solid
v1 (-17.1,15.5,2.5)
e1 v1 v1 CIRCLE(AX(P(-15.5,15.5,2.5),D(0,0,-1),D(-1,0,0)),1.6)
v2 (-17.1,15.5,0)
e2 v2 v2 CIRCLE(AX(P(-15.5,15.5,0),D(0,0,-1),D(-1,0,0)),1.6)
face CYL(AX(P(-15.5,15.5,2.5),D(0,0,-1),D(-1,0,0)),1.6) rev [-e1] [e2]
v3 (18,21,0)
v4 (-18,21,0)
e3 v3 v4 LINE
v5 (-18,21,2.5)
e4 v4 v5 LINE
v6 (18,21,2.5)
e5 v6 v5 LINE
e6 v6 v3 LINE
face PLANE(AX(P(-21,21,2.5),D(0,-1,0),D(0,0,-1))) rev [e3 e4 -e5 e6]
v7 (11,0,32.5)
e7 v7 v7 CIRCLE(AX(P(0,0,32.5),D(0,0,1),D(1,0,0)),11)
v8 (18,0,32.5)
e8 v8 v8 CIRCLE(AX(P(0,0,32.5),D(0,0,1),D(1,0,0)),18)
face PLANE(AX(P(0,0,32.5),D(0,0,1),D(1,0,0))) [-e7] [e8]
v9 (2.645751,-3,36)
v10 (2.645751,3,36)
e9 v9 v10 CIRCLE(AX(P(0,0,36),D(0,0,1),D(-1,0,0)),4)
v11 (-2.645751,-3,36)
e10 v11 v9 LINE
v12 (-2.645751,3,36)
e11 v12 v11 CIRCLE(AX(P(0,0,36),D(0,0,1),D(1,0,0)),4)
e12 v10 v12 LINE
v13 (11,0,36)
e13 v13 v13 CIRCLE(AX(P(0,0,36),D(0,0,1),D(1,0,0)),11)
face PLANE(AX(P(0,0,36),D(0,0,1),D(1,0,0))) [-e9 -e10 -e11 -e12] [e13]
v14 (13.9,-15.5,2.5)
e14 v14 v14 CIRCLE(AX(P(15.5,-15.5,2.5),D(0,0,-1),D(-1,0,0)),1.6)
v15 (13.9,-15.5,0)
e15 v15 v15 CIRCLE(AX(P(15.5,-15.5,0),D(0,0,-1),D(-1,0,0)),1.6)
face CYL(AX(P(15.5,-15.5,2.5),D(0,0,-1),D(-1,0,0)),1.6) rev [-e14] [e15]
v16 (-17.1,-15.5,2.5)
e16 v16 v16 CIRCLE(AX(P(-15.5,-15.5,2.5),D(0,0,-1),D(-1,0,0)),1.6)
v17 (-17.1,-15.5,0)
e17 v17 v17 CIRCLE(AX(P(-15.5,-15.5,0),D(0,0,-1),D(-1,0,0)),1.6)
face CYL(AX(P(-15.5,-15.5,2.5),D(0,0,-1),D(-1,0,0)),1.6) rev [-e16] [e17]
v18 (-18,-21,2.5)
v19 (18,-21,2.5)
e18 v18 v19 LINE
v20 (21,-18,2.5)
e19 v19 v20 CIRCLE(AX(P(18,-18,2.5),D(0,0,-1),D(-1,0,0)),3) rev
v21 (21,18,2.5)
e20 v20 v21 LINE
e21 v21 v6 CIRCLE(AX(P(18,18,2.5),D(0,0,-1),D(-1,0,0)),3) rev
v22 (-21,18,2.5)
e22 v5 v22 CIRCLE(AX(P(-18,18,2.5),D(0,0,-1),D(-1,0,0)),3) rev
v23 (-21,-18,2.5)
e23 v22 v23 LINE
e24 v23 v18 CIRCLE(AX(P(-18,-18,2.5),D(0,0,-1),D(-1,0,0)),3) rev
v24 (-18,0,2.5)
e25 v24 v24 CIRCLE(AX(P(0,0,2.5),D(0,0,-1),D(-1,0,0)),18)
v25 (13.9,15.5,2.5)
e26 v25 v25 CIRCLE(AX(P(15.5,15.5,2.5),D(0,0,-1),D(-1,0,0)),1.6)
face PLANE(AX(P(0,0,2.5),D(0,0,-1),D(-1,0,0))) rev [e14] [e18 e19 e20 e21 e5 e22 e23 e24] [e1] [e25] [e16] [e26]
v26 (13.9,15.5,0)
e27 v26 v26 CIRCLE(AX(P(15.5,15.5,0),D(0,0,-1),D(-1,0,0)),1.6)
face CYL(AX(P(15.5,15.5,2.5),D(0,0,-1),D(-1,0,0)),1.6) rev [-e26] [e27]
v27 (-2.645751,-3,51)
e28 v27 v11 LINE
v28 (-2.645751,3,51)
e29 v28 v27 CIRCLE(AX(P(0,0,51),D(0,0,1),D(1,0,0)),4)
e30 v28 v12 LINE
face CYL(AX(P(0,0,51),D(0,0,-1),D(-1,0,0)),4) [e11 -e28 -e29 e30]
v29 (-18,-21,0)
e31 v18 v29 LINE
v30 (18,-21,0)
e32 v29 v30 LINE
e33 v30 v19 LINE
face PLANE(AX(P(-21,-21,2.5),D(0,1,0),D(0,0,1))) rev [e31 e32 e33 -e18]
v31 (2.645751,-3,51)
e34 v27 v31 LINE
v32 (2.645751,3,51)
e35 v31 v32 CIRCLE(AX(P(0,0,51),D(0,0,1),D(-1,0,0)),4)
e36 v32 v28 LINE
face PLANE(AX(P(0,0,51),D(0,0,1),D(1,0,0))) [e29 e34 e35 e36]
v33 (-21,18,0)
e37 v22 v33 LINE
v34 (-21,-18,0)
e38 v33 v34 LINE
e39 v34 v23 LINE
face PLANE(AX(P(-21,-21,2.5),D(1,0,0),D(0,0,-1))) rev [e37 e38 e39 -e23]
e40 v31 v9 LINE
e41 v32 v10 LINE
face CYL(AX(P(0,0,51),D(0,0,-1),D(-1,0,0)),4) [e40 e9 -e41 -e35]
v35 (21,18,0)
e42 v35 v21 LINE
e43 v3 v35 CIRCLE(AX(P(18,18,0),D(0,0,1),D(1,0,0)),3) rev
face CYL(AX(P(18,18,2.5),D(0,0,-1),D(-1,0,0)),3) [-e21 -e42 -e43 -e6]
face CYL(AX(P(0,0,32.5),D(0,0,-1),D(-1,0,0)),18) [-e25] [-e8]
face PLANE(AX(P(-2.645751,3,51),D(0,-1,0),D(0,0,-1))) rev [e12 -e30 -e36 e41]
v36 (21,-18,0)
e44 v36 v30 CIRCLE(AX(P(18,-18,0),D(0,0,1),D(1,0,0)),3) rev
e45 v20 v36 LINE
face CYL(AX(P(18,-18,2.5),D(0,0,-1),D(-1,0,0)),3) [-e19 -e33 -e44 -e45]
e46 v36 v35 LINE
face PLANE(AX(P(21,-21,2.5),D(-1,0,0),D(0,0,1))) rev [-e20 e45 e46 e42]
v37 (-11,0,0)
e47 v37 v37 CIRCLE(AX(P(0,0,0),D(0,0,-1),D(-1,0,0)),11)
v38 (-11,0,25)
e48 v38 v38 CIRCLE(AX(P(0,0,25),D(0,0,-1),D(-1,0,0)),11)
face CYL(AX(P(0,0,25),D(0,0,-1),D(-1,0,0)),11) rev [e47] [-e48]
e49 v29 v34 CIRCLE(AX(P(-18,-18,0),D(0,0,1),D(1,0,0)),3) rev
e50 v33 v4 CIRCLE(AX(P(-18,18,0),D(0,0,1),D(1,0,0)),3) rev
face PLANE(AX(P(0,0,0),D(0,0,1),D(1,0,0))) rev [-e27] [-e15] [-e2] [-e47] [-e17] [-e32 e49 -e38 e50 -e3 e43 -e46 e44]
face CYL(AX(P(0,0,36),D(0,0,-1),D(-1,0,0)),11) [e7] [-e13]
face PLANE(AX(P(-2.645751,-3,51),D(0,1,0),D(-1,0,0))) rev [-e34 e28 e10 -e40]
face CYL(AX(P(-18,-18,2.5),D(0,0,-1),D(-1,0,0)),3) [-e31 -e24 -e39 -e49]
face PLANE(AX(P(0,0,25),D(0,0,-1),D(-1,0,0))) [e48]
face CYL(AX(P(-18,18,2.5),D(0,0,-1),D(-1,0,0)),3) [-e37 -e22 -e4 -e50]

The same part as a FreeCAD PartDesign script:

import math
import FreeCAD as App
import Part
import Sketcher
from FreeCAD import Vector
Q = App.Units.Quantity


def edges_at(feature, points):
    """Names of the edges that pass closest to the given points."""
    edges = feature.Shape.Edges
    near = lambda p: min(range(len(edges)), key=lambda i: edges[i].distToShape(Part.Vertex(*p))[0])
    return sorted({f"Edge{near(p) + 1}" for p in points})


def add_polygon(sketch, points):
    """Adds a closed chain of lines whose ends are joined by coincident constraints."""
    first, n = sketch.GeometryCount, len(points)
    for a, b in zip(points, points[1:] + points[:1]):
        sketch.addGeometry(Part.LineSegment(App.Vector(*a, 0), App.Vector(*b, 0)), False)
    for i in range(n):
        sketch.addConstraint(Sketcher.Constraint("Coincident", first + i, 2, first + (i + 1) % n, 1))

doc = App.newDocument("Part")
params = doc.addObject("Spreadsheet::Sheet", "Params")
for row, (alias, value) in enumerate([
    ("sketch1_diameter", "36 mm"),
    ("pad1_length", "32.5 mm"),
    ("sketch2_diameter", "36 mm"),
    ("sketch2_width", "42 mm"),
    ("pad2_length", "2.5 mm"),
    ("fillet_radius", "3 mm"),
    ("sketch3_diameter", "3.2 mm"),
    ("pocket1_length", "2.5 mm"),
    ("sketch4_diameter", "22 mm"),
    ("pad3_length", "3.5 mm"),
    ("sketch5_radius", "4 mm"),
    ("pad4_length", "15 mm"),
    ("sketch6_diameter", "22 mm"),
    ("pocket2_length", "25 mm"),
], start=1):
    params.set(f"A{row}", alias)
    params.set(f"B{row}", "=" + value)
    params.setAlias(f"B{row}", alias)

body = doc.addObject("PartDesign::Body", "Body")

# Sketch on XY plane
sketch1 = body.newObject("Sketcher::SketchObject", "Sketch")
sketch1.AttachmentSupport = (doc.getObject("XY_Plane"), [""])
sketch1.MapMode = "FlatFace"
sketch1.addGeometry(Part.Circle(Vector(0, 0, 0), Vector(0, 0, 1), 18), False)
sketch1.addConstraint([
    Sketcher.Constraint("Coincident", 0, 3, -1, 1),
    Sketcher.Constraint("Diameter", 0, Q("36 mm")),
])
sketch1.setExpression("Constraints[1]", "Params.sketch1_diameter")
pad1 = body.newObject("PartDesign::Pad", "Pad")
pad1.Profile = sketch1
pad1.setExpression("Length", "Params.pad1_length")

# Sketch on XY plane
sketch2 = body.newObject("Sketcher::SketchObject", "Sketch001")
sketch2.AttachmentSupport = (doc.getObject("XY_Plane"), [""])
sketch2.MapMode = "FlatFace"
add_polygon(sketch2, [(-21, 21), (-21, -21), (21, -21), (21, 21)])  # lines 0-3
sketch2.addGeometry(Part.Circle(Vector(0, 0, 0), Vector(0, 0, 1), 18), False)  # 4
sketch2.addConstraint([
    Sketcher.Constraint("Vertical", 0),
    Sketcher.Constraint("Horizontal", 1),
    Sketcher.Constraint("Vertical", 2),
    Sketcher.Constraint("Horizontal", 3),
    Sketcher.Constraint("Coincident", 4, 3, -1, 1),
    Sketcher.Constraint("Symmetric", 0, 2, 2, 2, -1, 1),
    Sketcher.Constraint("Equal", 3, 0),
    Sketcher.Constraint("Diameter", 4, Q("36 mm")),
    Sketcher.Constraint("DistanceX", 1, 1, 1, 2, Q("42 mm")),
])
sketch2.setExpression("Constraints[11]", "Params.sketch2_diameter")
sketch2.setExpression("Constraints[12]", "Params.sketch2_width")
pad2 = body.newObject("PartDesign::Pad", "Pad001")
pad2.Profile = sketch2
pad2.setExpression("Length", "Params.pad2_length")
doc.recompute()

fillet = body.newObject("PartDesign::Fillet", "Fillet")
fillet.Base = (pad2, edges_at(pad2, [
    (21, -21, 1.25),
    (21, 21, 1.25),
    (-21, 21, 1.25),
    (-21, -21, 1.25),
]))
fillet.setExpression("Radius", "Params.fillet_radius")

# Sketch on XY plane
sketch3 = body.newObject("Sketcher::SketchObject", "Sketch002")
sketch3.AttachmentSupport = (doc.getObject("XY_Plane"), [""])
sketch3.MapMode = "FlatFace"
sketch3.addGeometry([
    Part.Circle(Vector(15.5, 15.5, 0), Vector(0, 0, 1), 1.6),
    Part.Circle(Vector(15.5, -15.5, 0), Vector(0, 0, 1), 1.6),
    Part.Circle(Vector(-15.5, -15.5, 0), Vector(0, 0, 1), 1.6),
    Part.Circle(Vector(-15.5, 15.5, 0), Vector(0, 0, 1), 1.6),
], False)
sketch3.addConstraint([
    Sketcher.Constraint("Equal", 0, 1),
    Sketcher.Constraint("Equal", 1, 2),
    Sketcher.Constraint("Equal", 2, 3),
    Sketcher.Constraint("Symmetric", 0, 3, 2, 3, -1, 1),
    Sketcher.Constraint("Symmetric", 1, 3, 3, 3, -1, 1),
    Sketcher.Constraint("Symmetric", 1, 3, 2, 3, -2),
    Sketcher.Constraint("Diameter", 0, Q("3.2 mm")),
    Sketcher.Constraint("DistanceY", 1, 3, 0, 3, Q("31 mm")),
    Sketcher.Constraint("DistanceX", 2, 3, 1, 3, Q("31 mm")),
])
sketch3.setExpression("Constraints[6]", "Params.sketch3_diameter")
pocket1 = body.newObject("PartDesign::Pocket", "Pocket")
pocket1.Profile = sketch3
pocket1.setExpression("Length", "Params.pocket1_length")
pocket1.Reversed = True

# Sketch on XY plane
sketch4 = body.newObject("Sketcher::SketchObject", "Sketch003")
sketch4.AttachmentSupport = (doc.getObject("XY_Plane"), [""])
sketch4.MapMode = "FlatFace"
sketch4.AttachmentOffset = App.Placement(Vector(0, 0, 32.5), App.Rotation())
sketch4.addGeometry(Part.Circle(Vector(0, 0, 0), Vector(0, 0, 1), 11), False)
sketch4.addConstraint([
    Sketcher.Constraint("Coincident", 0, 3, -1, 1),
    Sketcher.Constraint("Diameter", 0, Q("22 mm")),
])
sketch4.setExpression("Constraints[1]", "Params.sketch4_diameter")
pad3 = body.newObject("PartDesign::Pad", "Pad002")
pad3.Profile = sketch4
pad3.setExpression("Length", "Params.pad3_length")

# Sketch on XY plane
sketch5 = body.newObject("Sketcher::SketchObject", "Sketch004")
sketch5.AttachmentSupport = (doc.getObject("XY_Plane"), [""])
sketch5.MapMode = "FlatFace"
sketch5.AttachmentOffset = App.Placement(Vector(0, 0, 36), App.Rotation())
sketch5.addGeometry([
    Part.LineSegment(Vector(-2.645751, -3, 0), Vector(2.645751, -3, 0)),
    Part.ArcOfCircle(Part.Circle(Vector(0, 0, 0), Vector(0, 0, 1), 4), math.radians(-48.590378), math.radians(48.590378)),
    Part.LineSegment(Vector(2.645751, 3, 0), Vector(-2.645751, 3, 0)),
    Part.ArcOfCircle(Part.Circle(Vector(0, 0, 0), Vector(0, 0, 1), 4), math.radians(131.409622), math.radians(228.590378)),
], False)
sketch5.addConstraint([
    Sketcher.Constraint("Coincident", 0, 2, 1, 1),
    Sketcher.Constraint("Coincident", 1, 2, 2, 1),
    Sketcher.Constraint("Coincident", 2, 2, 3, 1),
    Sketcher.Constraint("Coincident", 3, 2, 0, 1),
    Sketcher.Constraint("Horizontal", 0),
    Sketcher.Constraint("Horizontal", 2),
    Sketcher.Constraint("Coincident", 1, 3, -1, 1),
    Sketcher.Constraint("Coincident", 3, 3, -1, 1),
    Sketcher.Constraint("Equal", 1, 3),
    Sketcher.Constraint("Vertical", 0, 2, 1, 2),
    Sketcher.Constraint("Radius", 1, Q("4 mm")),
    Sketcher.Constraint("DistanceY", 0, 2, -1, 1, Q("3 mm")),
])
sketch5.setExpression("Constraints[10]", "Params.sketch5_radius")
pad4 = body.newObject("PartDesign::Pad", "Pad003")
pad4.Profile = sketch5
pad4.setExpression("Length", "Params.pad4_length")

# Sketch on XY plane
sketch6 = body.newObject("Sketcher::SketchObject", "Sketch005")
sketch6.AttachmentSupport = (doc.getObject("XY_Plane"), [""])
sketch6.MapMode = "FlatFace"
sketch6.addGeometry(Part.Circle(Vector(0, 0, 0), Vector(0, 0, 1), 11), False)
sketch6.addConstraint([
    Sketcher.Constraint("Coincident", 0, 3, -1, 1),
    Sketcher.Constraint("Diameter", 0, Q("22 mm")),
])
sketch6.setExpression("Constraints[1]", "Params.sketch6_diameter")
pocket2 = body.newObject("PartDesign::Pocket", "Pocket001")
pocket2.Profile = sketch6
pocket2.setExpression("Length", "Params.pocket2_length")
pocket2.Reversed = True

doc.recompute()
